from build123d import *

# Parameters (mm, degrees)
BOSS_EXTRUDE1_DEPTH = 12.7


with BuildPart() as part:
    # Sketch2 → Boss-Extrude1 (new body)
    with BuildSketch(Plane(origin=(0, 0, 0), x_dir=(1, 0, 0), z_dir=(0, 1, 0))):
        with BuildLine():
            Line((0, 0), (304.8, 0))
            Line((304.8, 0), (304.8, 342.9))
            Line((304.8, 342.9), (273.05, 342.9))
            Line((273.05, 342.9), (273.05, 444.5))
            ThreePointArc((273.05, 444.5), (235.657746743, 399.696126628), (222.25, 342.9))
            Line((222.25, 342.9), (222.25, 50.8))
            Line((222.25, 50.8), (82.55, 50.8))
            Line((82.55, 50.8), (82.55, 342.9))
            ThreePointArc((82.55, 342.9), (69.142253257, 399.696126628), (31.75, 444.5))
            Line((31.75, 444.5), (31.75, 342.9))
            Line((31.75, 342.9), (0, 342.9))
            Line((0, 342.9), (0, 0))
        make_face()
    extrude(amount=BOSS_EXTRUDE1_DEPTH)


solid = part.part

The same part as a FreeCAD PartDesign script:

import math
import FreeCAD as App
import Part
import Sketcher
Q = App.Units.Quantity

doc = App.newDocument("Part")
body = doc.addObject("PartDesign::Body", "Body")

# Sketch on XZ plane
sketch1 = body.newObject("Sketcher::SketchObject", "Sketch")
sketch1.AttachmentSupport = (doc.getObject("XZ_Plane"), [""])
sketch1.MapMode = "FlatFace"
sketch1.addGeometry(Part.LineSegment(App.Vector(0, 0, 0), App.Vector(305, 0, 0)), False)
sketch1.addGeometry(Part.LineSegment(App.Vector(305, 0, 0), App.Vector(305, -343, 0)), False)
sketch1.addGeometry(Part.LineSegment(App.Vector(305, -343, 0), App.Vector(273, -343, 0)), False)
sketch1.addGeometry(Part.LineSegment(App.Vector(273, -343, 0), App.Vector(273, -444, 0)), False)
sketch1.addGeometry(Part.ArcOfCircle(Part.Circle(App.Vector(349, -343, 0), App.Vector(0, 0, 1), 127), math.radians(-180), math.radians(-127)), False)
sketch1.addGeometry(Part.LineSegment(App.Vector(222, -343, 0), App.Vector(222, -51, 0)), False)
sketch1.addGeometry(Part.LineSegment(App.Vector(222, -51, 0), App.Vector(83, -51, 0)), False)
sketch1.addGeometry(Part.LineSegment(App.Vector(83, -51, 0), App.Vector(83, -343, 0)), False)
sketch1.addGeometry(Part.ArcOfCircle(Part.Circle(App.Vector(-44, -343, 0), App.Vector(0, 0, 1), 127), math.radians(-53), math.radians(0)), False)
sketch1.addGeometry(Part.LineSegment(App.Vector(32, -444, 0), App.Vector(32, -343, 0)), False)
sketch1.addGeometry(Part.LineSegment(App.Vector(32, -343, 0), App.Vector(0, -343, 0)), False)
sketch1.addGeometry(Part.LineSegment(App.Vector(0, -343, 0), App.Vector(0, 0, 0)), False)
sketch1.addConstraint(Sketcher.Constraint("Coincident", 0, 2, 1, 1))
sketch1.addConstraint(Sketcher.Constraint("Coincident", 1, 2, 2, 1))
sketch1.addConstraint(Sketcher.Constraint("Coincident", 2, 2, 3, 1))
sketch1.addConstraint(Sketcher.Constraint("Coincident", 3, 2, 4, 2))
sketch1.addConstraint(Sketcher.Constraint("Tangent", 4, 1, 5, 1))
sketch1.addConstraint(Sketcher.Constraint("Coincident", 5, 2, 6, 1))
sketch1.addConstraint(Sketcher.Constraint("Coincident", 6, 2, 7, 1))
sketch1.addConstraint(Sketcher.Constraint("Tangent", 7, 2, 8, 2))
sketch1.addConstraint(Sketcher.Constraint("Coincident", 8, 1, 9, 1))
sketch1.addConstraint(Sketcher.Constraint("Coincident", 9, 2, 10, 1))
sketch1.addConstraint(Sketcher.Constraint("Coincident", 10, 2, 11, 1))
sketch1.addConstraint(Sketcher.Constraint("Coincident", 11, 2, 0, 1))
sketch1.addConstraint(Sketcher.Constraint("Horizontal", 0))
sketch1.addConstraint(Sketcher.Constraint("Vertical", 1))
sketch1.addConstraint(Sketcher.Constraint("Horizontal", 2))
sketch1.addConstraint(Sketcher.Constraint("Vertical", 3))
sketch1.addConstraint(Sketcher.Constraint("Vertical", 5))
sketch1.addConstraint(Sketcher.Constraint("Horizontal", 6))
sketch1.addConstraint(Sketcher.Constraint("Vertical", 7))
sketch1.addConstraint(Sketcher.Constraint("Vertical", 9))
sketch1.addConstraint(Sketcher.Constraint("Horizontal", 10))
sketch1.addConstraint(Sketcher.Constraint("Vertical", 11))
sketch1.addConstraint(Sketcher.Constraint("Coincident", 11, 2, -1, 1))
sketch1.addConstraint(Sketcher.Constraint("Equal", 4, 8))
sketch1.addConstraint(Sketcher.Constraint("Horizontal", 4, 3, 8, 3))
sketch1.addConstraint(Sketcher.Constraint("Horizontal", 8, 3, 1, 2))
sketch1.addConstraint(Sketcher.Constraint("Horizontal", 3, 2, 8, 1))
sketch1.addConstraint(Sketcher.Constraint("Horizontal", 7, 2, 9, 2))
sketch1.addConstraint(Sketcher.Constraint("Equal", 2, 10))
sketch1.addConstraint(Sketcher.Constraint("Radius", 4, Q("5 in")))
sketch1.addConstraint(Sketcher.Constraint("DistanceX", 0, 1, 0, 2, Q("12 in")))
sketch1.addConstraint(Sketcher.Constraint("DistanceY", 3, 2, 3, 1, Q("4 in")))
sketch1.addConstraint(Sketcher.Constraint("DistanceX", 6, 2, 6, 1, Q("5.5 in")))
sketch1.addConstraint(Sketcher.Constraint("DistanceY", 1, 2, 1, 1, Q("13.5 in")))
sketch1.addConstraint(Sketcher.Constraint("DistanceY", 5, 1, 5, 2, Q("11.5 in")))
pad1 = body.newObject("PartDesign::Pad", "Pad")
pad1.Profile = sketch1
pad1.Length = Q("0.5 in")
pad1.Reversed = True

doc.recompute()
